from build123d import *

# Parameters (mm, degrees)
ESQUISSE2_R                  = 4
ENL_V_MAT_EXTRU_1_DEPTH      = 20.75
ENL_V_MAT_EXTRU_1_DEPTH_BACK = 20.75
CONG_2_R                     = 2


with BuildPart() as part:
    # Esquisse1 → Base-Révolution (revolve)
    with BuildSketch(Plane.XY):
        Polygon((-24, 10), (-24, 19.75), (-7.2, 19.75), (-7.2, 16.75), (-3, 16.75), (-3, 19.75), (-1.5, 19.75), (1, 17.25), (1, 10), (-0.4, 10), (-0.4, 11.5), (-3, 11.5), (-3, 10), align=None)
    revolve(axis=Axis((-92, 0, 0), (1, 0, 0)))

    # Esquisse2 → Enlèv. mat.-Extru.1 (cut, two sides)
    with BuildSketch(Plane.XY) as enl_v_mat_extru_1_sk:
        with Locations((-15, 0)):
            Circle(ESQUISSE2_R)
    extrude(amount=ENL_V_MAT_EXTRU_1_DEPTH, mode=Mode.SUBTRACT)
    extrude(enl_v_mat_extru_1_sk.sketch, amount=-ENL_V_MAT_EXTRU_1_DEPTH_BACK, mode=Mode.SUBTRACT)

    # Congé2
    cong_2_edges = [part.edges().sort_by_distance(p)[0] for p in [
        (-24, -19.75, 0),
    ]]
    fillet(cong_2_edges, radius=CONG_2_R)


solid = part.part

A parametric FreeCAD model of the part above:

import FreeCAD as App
import Part
import Sketcher
from FreeCAD import Vector
Q = App.Units.Quantity


def edges_at(feature, points):
    """Names of the edges that pass closest to the given points."""
    edges = feature.Shape.Edges
    near = lambda p: min(range(len(edges)), key=lambda i: edges[i].distToShape(Part.Vertex(*p))[0])
    return sorted({f"Edge{near(p) + 1}" for p in points})


def add_polygon(sketch, points):
    """Adds a closed chain of lines whose ends are joined by coincident constraints."""
    first, n = sketch.GeometryCount, len(points)
    for a, b in zip(points, points[1:] + points[:1]):
        sketch.addGeometry(Part.LineSegment(App.Vector(*a, 0), App.Vector(*b, 0)), False)
    for i in range(n):
        sketch.addConstraint(Sketcher.Constraint("Coincident", first + i, 2, first + (i + 1) % n, 1))

doc = App.newDocument("Part")
body = doc.addObject("PartDesign::Body", "Body")

# Sketch on XY plane
sketch1 = doc.addObject("Sketcher::SketchObject", "Sketch")
body.addObject(sketch1)
sketch1.AttachmentSupport = (doc.XY_Plane, [""])
sketch1.MapMode = "FlatFace"
add_polygon(sketch1, [(-24, 19.75), (-24, 10), (-3, 10), (-3, 11.5), (-0.4, 11.5), (-0.4, 10), (1, 10), (1, 17.25), (-1.5, 19.75), (-3, 19.75), (-3, 16.75), (-7.2, 16.75), (-7.2, 19.75)])  # lines 0-12
sketch1.addConstraint([
    Sketcher.Constraint("Vertical", 0),
    Sketcher.Constraint("Horizontal", 1),
    Sketcher.Constraint("Vertical", 2),
    Sketcher.Constraint("Horizontal", 3),
    Sketcher.Constraint("Vertical", 4),
    Sketcher.Constraint("Horizontal", 5),
    Sketcher.Constraint("Vertical", 6),
    Sketcher.Constraint("Horizontal", 8),
    Sketcher.Constraint("Vertical", 9),
    Sketcher.Constraint("Horizontal", 10),
    Sketcher.Constraint("Vertical", 11),
    Sketcher.Constraint("Horizontal", 12),
    Sketcher.Constraint("Horizontal", 1, 2, 4, 2),
    Sketcher.Constraint("Horizontal", 8, 2, 11, 2),
    Sketcher.Constraint("Vertical", 2, 2, 8, 2),
    Sketcher.Constraint("Equal", 8, 2),
    Sketcher.Constraint("DistanceX", 1, 1, 1, 2, Q("21 mm")),
    Sketcher.Constraint("DistanceY", 9, 2, 9, 1, Q("3 mm")),
    Sketcher.Constraint("Angle", 7, Q("135 deg")),
    Sketcher.Constraint("DistanceX", 3, 1, 3, 2, Q("2.6 mm")),
    Sketcher.Constraint("DistanceX", 5, 1, 5, 2, Q("1.4 mm")),
    Sketcher.Constraint("DistanceX", 8, 2, 8, 1, Q("1.5 mm")),
    Sketcher.Constraint("DistanceX", 10, 2, 10, 1, Q("4.2 mm")),
    Sketcher.Constraint("DistanceX", 0, 2, -1, 1, Q("24 mm")),
    Sketcher.Constraint("DistanceY", -1, 1, 0, 2, Q("10 mm")),
    Sketcher.Constraint("DistanceY", 0, 2, 0, 1, Q("9.75 mm")),
])
revolution = doc.addObject("PartDesign::Revolution", "Revolution")
body.addObject(revolution)
revolution.Profile = sketch1
revolution.ReferenceAxis = (sketch1, ["H_Axis"])
revolution.Angle = 360

# Sketch on XY plane
sketch2 = doc.addObject("Sketcher::SketchObject", "Sketch001")
body.addObject(sketch2)
sketch2.AttachmentSupport = (doc.XY_Plane, [""])
sketch2.MapMode = "FlatFace"
sketch2.addGeometry(Part.Circle(Vector(-15, 0, 0), Vector(0, 0, 1), 4), False)
sketch2.addConstraint([
    Sketcher.Constraint("PointOnObject", 0, 3, -1),
    Sketcher.Constraint("Diameter", 0, Q("8 mm")),
    Sketcher.Constraint("DistanceX", 0, 3, -1, 1, Q("15 mm")),
])
pocket1 = doc.addObject("PartDesign::Pocket", "Pocket")
body.addObject(pocket1)
pocket1.Profile = sketch2
pocket1.Type = "ThroughAll"
pocket1.Midplane = True
doc.recompute()

fillet = doc.addObject("PartDesign::Fillet", "Fillet")
body.addObject(fillet)
fillet.Base = (pocket1, edges_at(pocket1, [(-24, -19.75, 0)]))
fillet.Radius = 2

doc.recompute()
